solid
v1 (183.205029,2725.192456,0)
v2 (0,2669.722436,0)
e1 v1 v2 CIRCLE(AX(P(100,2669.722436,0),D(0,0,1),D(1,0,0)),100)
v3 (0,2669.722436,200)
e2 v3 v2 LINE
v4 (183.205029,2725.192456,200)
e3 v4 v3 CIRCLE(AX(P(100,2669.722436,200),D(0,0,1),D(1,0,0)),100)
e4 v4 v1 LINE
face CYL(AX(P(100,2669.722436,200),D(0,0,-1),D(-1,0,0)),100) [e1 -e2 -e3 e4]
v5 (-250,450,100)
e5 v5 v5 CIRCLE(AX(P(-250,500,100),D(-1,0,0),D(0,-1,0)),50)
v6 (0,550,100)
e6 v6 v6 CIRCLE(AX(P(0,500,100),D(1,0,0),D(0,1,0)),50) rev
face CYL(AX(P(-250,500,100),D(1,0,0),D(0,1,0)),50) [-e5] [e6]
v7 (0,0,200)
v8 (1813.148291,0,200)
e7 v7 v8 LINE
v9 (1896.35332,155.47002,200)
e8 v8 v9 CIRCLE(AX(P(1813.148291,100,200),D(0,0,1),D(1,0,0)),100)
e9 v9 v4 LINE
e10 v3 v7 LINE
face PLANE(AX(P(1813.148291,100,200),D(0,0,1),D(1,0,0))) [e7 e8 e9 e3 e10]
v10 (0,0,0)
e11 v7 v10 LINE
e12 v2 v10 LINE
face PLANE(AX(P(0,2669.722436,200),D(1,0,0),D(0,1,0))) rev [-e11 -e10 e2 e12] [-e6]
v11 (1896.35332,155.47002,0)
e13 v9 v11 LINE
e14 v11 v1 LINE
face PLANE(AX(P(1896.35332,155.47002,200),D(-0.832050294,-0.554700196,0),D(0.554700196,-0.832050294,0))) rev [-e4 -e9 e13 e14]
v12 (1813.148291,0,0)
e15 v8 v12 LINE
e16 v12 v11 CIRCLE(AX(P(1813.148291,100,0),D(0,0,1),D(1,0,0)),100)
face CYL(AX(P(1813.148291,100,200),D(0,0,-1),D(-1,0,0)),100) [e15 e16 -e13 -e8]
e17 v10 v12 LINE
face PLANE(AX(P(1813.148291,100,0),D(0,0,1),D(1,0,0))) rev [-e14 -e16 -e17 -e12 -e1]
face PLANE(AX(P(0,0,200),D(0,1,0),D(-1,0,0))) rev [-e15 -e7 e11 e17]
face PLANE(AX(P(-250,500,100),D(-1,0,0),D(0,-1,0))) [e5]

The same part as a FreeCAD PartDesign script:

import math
import FreeCAD as App
import Part
import Sketcher
from FreeCAD import Vector

doc = App.newDocument("Part")
params = doc.addObject("Spreadsheet::Sheet", "Params")
for row, (alias, value) in enumerate([
    ("sketch1_radius", "100 mm"),
    ("pad1_length", "200 mm"),
    ("sketch2_diameter", "100 mm"),
    ("pad2_length", "250 mm"),
], start=1):
    params.set(f"A{row}", alias)
    params.set(f"B{row}", "=" + value)
    params.setAlias(f"B{row}", alias)

body = doc.addObject("PartDesign::Body", "Body")

sketch1 = body.newObject("Sketcher::SketchObject", "Sketch")
sketch1.AttachmentSupport = (doc.getObject("XY_Plane"), [""])
sketch1.MapMode = "FlatFace"
sketch1.addGeometry([
    Part.LineSegment(Vector(0, 0, 0), Vector(1813.148291, 0, 0)),
    Part.ArcOfCircle(Part.Circle(Vector(1813.148291, 100, 0), Vector(0, 0, 1), 100), math.radians(-90), math.radians(33.690068)),
    Part.LineSegment(Vector(1896.35332, 155.47002, 0), Vector(183.205029, 2725.192456, 0)),
    Part.ArcOfCircle(Part.Circle(Vector(100, 2669.722436, 0), Vector(0, 0, 1), 100), math.radians(33.690068), math.radians(180)),
    Part.LineSegment(Vector(0, 2669.722436, 0), Vector(0, 0, 0)),
], False)
sketch1.addConstraint([
    Sketcher.Constraint("Tangent", 0, 2, 1, 1),
    Sketcher.Constraint("Tangent", 1, 2, 2, 1),
    Sketcher.Constraint("Tangent", 2, 2, 3, 1),
    Sketcher.Constraint("Tangent", 3, 2, 4, 1),
    Sketcher.Constraint("Coincident", 4, 2, 0, 1),
    Sketcher.Constraint("Horizontal", 0),
    Sketcher.Constraint("Vertical", 4),
    Sketcher.Constraint("Coincident", 4, 2, -1, 1),
    Sketcher.Constraint("Equal", 1, 3),
    Sketcher.Constraint("Radius", 1, 100.0),
    Sketcher.Constraint("DistanceX", 0, 1, 0, 2, 1813.148291),
    Sketcher.Constraint("DistanceY", 4, 2, 4, 1, 2669.722436),
])
sketch1.setExpression("Constraints[9]", "Params.sketch1_radius")
pad1 = body.newObject("PartDesign::Pad", "Pad")
pad1.Profile = sketch1
pad1.setExpression("Length", "Params.pad1_length")

sketch2 = body.newObject("Sketcher::SketchObject", "Sketch001")
sketch2.AttachmentSupport = (doc.getObject("YZ_Plane"), [""])
sketch2.MapMode = "FlatFace"
sketch2.addGeometry(Part.Circle(Vector(500, 100, 0), Vector(0, 0, 1), 50), False)
sketch2.addConstraint([
    Sketcher.Constraint("Diameter", 0, 100.0),
    Sketcher.Constraint("DistanceX", -1, 1, 0, 3, 500.0),
    Sketcher.Constraint("DistanceY", -1, 1, 0, 3, 100.0),
])
sketch2.setExpression("Constraints[0]", "Params.sketch2_diameter")
pad2 = body.newObject("PartDesign::Pad", "Pad001")
pad2.Profile = sketch2
pad2.setExpression("Length", "Params.pad2_length")
pad2.Reversed = True

doc.recompute()
